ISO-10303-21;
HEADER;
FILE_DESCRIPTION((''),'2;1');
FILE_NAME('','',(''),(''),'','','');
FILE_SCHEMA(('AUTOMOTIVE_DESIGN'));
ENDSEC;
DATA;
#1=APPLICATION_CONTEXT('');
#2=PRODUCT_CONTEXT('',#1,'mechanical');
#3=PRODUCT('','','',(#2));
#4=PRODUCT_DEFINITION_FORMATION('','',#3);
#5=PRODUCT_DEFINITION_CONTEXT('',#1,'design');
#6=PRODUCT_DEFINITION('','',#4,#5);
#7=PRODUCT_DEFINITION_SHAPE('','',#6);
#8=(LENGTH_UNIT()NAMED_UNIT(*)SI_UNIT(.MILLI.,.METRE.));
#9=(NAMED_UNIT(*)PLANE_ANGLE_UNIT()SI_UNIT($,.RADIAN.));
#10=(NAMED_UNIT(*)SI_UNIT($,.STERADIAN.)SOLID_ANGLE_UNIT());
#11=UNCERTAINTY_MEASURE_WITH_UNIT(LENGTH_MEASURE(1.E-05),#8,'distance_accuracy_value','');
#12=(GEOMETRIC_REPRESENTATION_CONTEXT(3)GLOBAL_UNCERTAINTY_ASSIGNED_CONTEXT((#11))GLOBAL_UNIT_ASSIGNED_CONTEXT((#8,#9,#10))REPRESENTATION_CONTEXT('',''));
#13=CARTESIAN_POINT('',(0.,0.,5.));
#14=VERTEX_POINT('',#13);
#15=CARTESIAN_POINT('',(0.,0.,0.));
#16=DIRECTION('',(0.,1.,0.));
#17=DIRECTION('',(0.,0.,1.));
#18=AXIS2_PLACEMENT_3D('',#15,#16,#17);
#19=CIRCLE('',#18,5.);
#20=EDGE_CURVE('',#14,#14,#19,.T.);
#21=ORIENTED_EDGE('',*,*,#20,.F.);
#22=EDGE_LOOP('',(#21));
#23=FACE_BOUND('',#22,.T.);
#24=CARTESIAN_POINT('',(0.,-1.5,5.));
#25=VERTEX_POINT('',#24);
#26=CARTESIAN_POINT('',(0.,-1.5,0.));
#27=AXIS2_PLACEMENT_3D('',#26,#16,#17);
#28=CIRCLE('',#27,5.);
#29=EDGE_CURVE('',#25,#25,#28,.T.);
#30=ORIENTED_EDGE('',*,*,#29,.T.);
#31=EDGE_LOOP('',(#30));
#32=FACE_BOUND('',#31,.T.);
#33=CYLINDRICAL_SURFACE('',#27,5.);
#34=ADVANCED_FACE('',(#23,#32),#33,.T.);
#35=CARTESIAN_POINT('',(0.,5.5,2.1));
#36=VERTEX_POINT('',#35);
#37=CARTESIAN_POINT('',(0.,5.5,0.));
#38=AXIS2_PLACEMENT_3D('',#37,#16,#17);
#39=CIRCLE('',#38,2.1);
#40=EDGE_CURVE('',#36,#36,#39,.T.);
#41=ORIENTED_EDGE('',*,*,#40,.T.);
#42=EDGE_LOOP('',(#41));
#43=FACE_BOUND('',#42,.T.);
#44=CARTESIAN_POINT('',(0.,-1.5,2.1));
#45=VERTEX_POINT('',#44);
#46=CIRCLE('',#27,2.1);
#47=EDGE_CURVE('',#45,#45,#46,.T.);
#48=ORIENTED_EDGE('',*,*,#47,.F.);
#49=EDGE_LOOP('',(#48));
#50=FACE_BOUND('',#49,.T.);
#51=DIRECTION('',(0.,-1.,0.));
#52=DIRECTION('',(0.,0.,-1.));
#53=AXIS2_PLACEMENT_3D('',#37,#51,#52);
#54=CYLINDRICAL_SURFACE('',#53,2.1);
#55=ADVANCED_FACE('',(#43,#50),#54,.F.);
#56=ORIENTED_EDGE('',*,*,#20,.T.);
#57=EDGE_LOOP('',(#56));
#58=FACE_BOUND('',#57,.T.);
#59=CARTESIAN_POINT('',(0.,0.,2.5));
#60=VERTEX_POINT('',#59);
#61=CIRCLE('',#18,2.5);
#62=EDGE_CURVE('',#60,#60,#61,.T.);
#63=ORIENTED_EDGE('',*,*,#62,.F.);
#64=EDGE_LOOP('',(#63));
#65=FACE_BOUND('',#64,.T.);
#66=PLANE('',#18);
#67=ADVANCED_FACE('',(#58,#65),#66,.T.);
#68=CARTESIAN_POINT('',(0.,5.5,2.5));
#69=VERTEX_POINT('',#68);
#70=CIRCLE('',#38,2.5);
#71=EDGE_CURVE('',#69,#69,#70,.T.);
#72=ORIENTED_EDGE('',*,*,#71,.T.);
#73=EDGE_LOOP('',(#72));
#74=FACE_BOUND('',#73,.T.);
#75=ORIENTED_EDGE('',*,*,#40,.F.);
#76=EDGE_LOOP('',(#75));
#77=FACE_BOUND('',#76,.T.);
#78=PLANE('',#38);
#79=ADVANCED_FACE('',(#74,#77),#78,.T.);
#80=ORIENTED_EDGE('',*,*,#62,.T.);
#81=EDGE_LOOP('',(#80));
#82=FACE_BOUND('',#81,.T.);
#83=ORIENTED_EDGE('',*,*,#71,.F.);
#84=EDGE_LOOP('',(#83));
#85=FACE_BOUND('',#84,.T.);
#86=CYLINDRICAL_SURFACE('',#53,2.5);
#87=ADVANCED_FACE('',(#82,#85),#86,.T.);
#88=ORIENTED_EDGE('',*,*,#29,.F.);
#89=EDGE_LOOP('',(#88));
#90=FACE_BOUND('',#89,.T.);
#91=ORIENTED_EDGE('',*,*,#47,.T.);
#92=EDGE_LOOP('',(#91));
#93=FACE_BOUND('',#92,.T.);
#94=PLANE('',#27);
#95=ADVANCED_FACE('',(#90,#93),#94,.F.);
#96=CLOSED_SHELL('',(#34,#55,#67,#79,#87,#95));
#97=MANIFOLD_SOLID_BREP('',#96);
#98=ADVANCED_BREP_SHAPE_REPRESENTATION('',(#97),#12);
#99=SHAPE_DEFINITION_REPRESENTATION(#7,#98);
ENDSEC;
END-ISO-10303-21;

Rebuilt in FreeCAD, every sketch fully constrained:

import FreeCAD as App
import Part
import Sketcher

V = App.Vector

doc = App.newDocument("Part")
body = doc.addObject("PartDesign::Body", "Body")

sketch1 = body.newObject("Sketcher::SketchObject", "Sketch")
sketch1.AttachmentSupport = (doc.getObject("XZ_Plane"), [""])
sketch1.MapMode = "FlatFace"
sketch1.addGeometry([
    Part.Circle(V(0, 0, 0), V(0, 0, 1), 2.5),
    Part.Circle(V(0, 0, 0), V(0, 0, 1), 2.1),
], False)
sketch1.addConstraint([
    Sketcher.Constraint("Coincident", 0, 3, -1, 1),
    Sketcher.Constraint("Coincident", 1, 3, -1, 1),
    Sketcher.Constraint("Diameter", 0, 5.0),
    Sketcher.Constraint("Diameter", 1, 4.2),
])
pad1 = body.newObject("PartDesign::Pad", "Pad")
pad1.Profile = sketch1
pad1.Length = 5.5
pad1.Reversed = True

sketch2 = body.newObject("Sketcher::SketchObject", "Sketch001")
sketch2.AttachmentSupport = (doc.getObject("XZ_Plane"), [""])
sketch2.MapMode = "FlatFace"
sketch2.addGeometry([
    Part.Circle(V(0, 0, 0), V(0, 0, 1), 5),
    Part.Circle(V(0, 0, 0), V(0, 0, 1), 2.1),
], False)
sketch2.addConstraint([
    Sketcher.Constraint("Coincident", 0, 3, -1, 1),
    Sketcher.Constraint("Coincident", 1, 3, -1, 1),
    Sketcher.Constraint("Diameter", 0, 10.0),
    Sketcher.Constraint("Diameter", 1, 4.2),
])
pad2 = body.newObject("PartDesign::Pad", "Pad001")
pad2.Profile = sketch2
pad2.Length = 1.5

doc.recompute()
